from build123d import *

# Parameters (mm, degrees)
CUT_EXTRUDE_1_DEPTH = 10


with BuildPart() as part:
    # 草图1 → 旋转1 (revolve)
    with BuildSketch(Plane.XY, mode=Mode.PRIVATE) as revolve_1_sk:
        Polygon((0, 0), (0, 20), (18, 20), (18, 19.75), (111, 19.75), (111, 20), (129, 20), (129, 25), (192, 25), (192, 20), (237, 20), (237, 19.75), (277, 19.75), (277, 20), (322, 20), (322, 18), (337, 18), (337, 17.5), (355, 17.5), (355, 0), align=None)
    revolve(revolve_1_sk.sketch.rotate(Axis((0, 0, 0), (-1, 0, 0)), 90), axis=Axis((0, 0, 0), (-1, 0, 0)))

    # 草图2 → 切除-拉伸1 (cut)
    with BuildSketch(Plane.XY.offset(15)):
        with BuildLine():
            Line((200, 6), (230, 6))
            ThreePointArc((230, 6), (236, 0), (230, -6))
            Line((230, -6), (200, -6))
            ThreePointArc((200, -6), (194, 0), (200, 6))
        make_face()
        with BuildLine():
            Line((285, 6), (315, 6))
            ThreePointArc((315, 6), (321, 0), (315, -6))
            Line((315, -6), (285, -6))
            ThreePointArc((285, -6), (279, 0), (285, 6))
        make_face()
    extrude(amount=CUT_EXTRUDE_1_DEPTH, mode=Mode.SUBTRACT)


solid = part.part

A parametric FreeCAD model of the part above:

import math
import FreeCAD as App
import Part
import Sketcher

V = App.Vector
Q = App.Units.Quantity


def add_polygon(sketch, points):
    """Adds a closed chain of lines whose ends are joined by coincident constraints."""
    first, n = sketch.GeometryCount, len(points)
    for a, b in zip(points, points[1:] + points[:1]):
        sketch.addGeometry(Part.LineSegment(App.Vector(*a, 0), App.Vector(*b, 0)), False)
    for i in range(n):
        sketch.addConstraint(Sketcher.Constraint("Coincident", first + i, 2, first + (i + 1) % n, 1))

doc = App.newDocument("Part")
body = doc.addObject("PartDesign::Body", "Body")

# Sketch on XY plane
sketch1 = body.newObject("Sketcher::SketchObject", "Sketch")
sketch1.AttachmentSupport = (doc.getObject("XY_Plane"), [""])
sketch1.MapMode = "FlatFace"
add_polygon(sketch1, [(0, 20), (0, 0), (355, 0), (355, 17.5), (337, 17.5), (337, 18), (322, 18), (322, 20), (277, 20), (277, 19.75), (237, 19.75), (237, 20), (192, 20), (192, 25), (129, 25), (129, 20), (111, 20), (111, 19.75), (18, 19.75), (18, 20)])  # lines 0-19
sketch1.addConstraint(Sketcher.Constraint("Vertical", 0))
sketch1.addConstraint(Sketcher.Constraint("Horizontal", 1))
sketch1.addConstraint(Sketcher.Constraint("Vertical", 2))
sketch1.addConstraint(Sketcher.Constraint("Horizontal", 3))
sketch1.addConstraint(Sketcher.Constraint("Vertical", 4))
sketch1.addConstraint(Sketcher.Constraint("Horizontal", 5))
sketch1.addConstraint(Sketcher.Constraint("Vertical", 6))
sketch1.addConstraint(Sketcher.Constraint("Horizontal", 7))
sketch1.addConstraint(Sketcher.Constraint("Vertical", 8))
sketch1.addConstraint(Sketcher.Constraint("Horizontal", 9))
sketch1.addConstraint(Sketcher.Constraint("Vertical", 10))
sketch1.addConstraint(Sketcher.Constraint("Horizontal", 11))
sketch1.addConstraint(Sketcher.Constraint("Vertical", 12))
sketch1.addConstraint(Sketcher.Constraint("Horizontal", 13))
sketch1.addConstraint(Sketcher.Constraint("Vertical", 14))
sketch1.addConstraint(Sketcher.Constraint("Horizontal", 15))
sketch1.addConstraint(Sketcher.Constraint("Vertical", 16))
sketch1.addConstraint(Sketcher.Constraint("Horizontal", 17))
sketch1.addConstraint(Sketcher.Constraint("Vertical", 18))
sketch1.addConstraint(Sketcher.Constraint("Horizontal", 19))
sketch1.addConstraint(Sketcher.Constraint("Coincident", 0, 2, -1, 1))
sketch1.addConstraint(Sketcher.Constraint("Horizontal", 7, 2, 10, 2))
sketch1.addConstraint(Sketcher.Constraint("Horizontal", 11, 2, 14, 2))
sketch1.addConstraint(Sketcher.Constraint("Horizontal", 9, 2, 16, 2))
sketch1.addConstraint(Sketcher.Constraint("Horizontal", 15, 2, 18, 2))
sketch1.addConstraint(Sketcher.Constraint("Equal", 7, 11))
sketch1.addConstraint(Sketcher.Constraint("Equal", 3, 15))
sketch1.addConstraint(Sketcher.Constraint("Equal", 15, 19))
sketch1.addConstraint(Sketcher.Constraint("DistanceX", 1, 1, 1, 2, Q("355 mm")))
sketch1.addConstraint(Sketcher.Constraint("DistanceX", 3, 2, 3, 1, Q("18 mm")))
sketch1.addConstraint(Sketcher.Constraint("DistanceX", 5, 2, 5, 1, Q("15 mm")))
sketch1.addConstraint(Sketcher.Constraint("DistanceX", 7, 2, 7, 1, Q("45 mm")))
sketch1.addConstraint(Sketcher.Constraint("DistanceX", 9, 2, 9, 1, Q("40 mm")))
sketch1.addConstraint(Sketcher.Constraint("DistanceX", 13, 2, 13, 1, Q("63 mm")))
sketch1.addConstraint(Sketcher.Constraint("DistanceY", 0, 2, 0, 1, Q("20 mm")))
sketch1.addConstraint(Sketcher.Constraint("DistanceY", 6, 1, 6, 2, Q("2 mm")))
sketch1.addConstraint(Sketcher.Constraint("DistanceY", 12, 1, 12, 2, Q("5 mm")))
sketch1.addConstraint(Sketcher.Constraint("DistanceY", 2, 1, 2, 2, Q("17.5 mm")))
sketch1.addConstraint(Sketcher.Constraint("DistanceY", 8, 2, 8, 1, Q("0.25 mm")))
revolution = body.newObject("PartDesign::Revolution", "Revolution")
revolution.Profile = sketch1
revolution.ReferenceAxis = (sketch1, ["H_Axis"])
revolution.Angle = 360

# Sketch on XY plane
sketch2 = body.newObject("Sketcher::SketchObject", "Sketch001")
sketch2.AttachmentSupport = (doc.getObject("XY_Plane"), [""])
sketch2.MapMode = "FlatFace"
sketch2.AttachmentOffset = App.Placement(V(0, 0, 15), App.Rotation())
sketch2.addGeometry(Part.LineSegment(V(230, 6, 0), V(200, 6, 0)), False)
sketch2.addGeometry(Part.ArcOfCircle(Part.Circle(V(200, 0, 0), V(0, 0, 1), 6), math.radians(90), math.radians(270)), False)
sketch2.addGeometry(Part.LineSegment(V(200, -6, 0), V(230, -6, 0)), False)
sketch2.addGeometry(Part.ArcOfCircle(Part.Circle(V(230, 0, 0), V(0, 0, 1), 6), math.radians(-90), math.radians(90)), False)
sketch2.addGeometry(Part.LineSegment(V(315, 6, 0), V(285, 6, 0)), False)
sketch2.addGeometry(Part.ArcOfCircle(Part.Circle(V(285, 0, 0), V(0, 0, 1), 6), math.radians(90), math.radians(270)), False)
sketch2.addGeometry(Part.LineSegment(V(285, -6, 0), V(315, -6, 0)), False)
sketch2.addGeometry(Part.ArcOfCircle(Part.Circle(V(315, 0, 0), V(0, 0, 1), 6), math.radians(-90), math.radians(90)), False)
sketch2.addConstraint(Sketcher.Constraint("Tangent", 0, 2, 1, 1))
sketch2.addConstraint(Sketcher.Constraint("Tangent", 1, 2, 2, 1))
sketch2.addConstraint(Sketcher.Constraint("Tangent", 2, 2, 3, 1))
sketch2.addConstraint(Sketcher.Constraint("Tangent", 3, 2, 0, 1))
sketch2.addConstraint(Sketcher.Constraint("Tangent", 4, 2, 5, 1))
sketch2.addConstraint(Sketcher.Constraint("Tangent", 5, 2, 6, 1))
sketch2.addConstraint(Sketcher.Constraint("Tangent", 6, 2, 7, 1))
sketch2.addConstraint(Sketcher.Constraint("Tangent", 7, 2, 4, 1))
sketch2.addConstraint(Sketcher.Constraint("Horizontal", 0))
sketch2.addConstraint(Sketcher.Constraint("Horizontal", 2))
sketch2.addConstraint(Sketcher.Constraint("Horizontal", 4))
sketch2.addConstraint(Sketcher.Constraint("Horizontal", 6))
sketch2.addConstraint(Sketcher.Constraint("Equal", 3, 5))
sketch2.addConstraint(Sketcher.Constraint("PointOnObject", 1, 3, -1))
sketch2.addConstraint(Sketcher.Constraint("PointOnObject", 5, 3, -1))
sketch2.addConstraint(Sketcher.Constraint("Equal", 2, 4))
sketch2.addConstraint(Sketcher.Constraint("Radius", 1, Q("6 mm")))
sketch2.addConstraint(Sketcher.Constraint("DistanceX", 0, 2, 0, 1, Q("30 mm")))
sketch2.addConstraint(Sketcher.Constraint("DistanceX", -1, 1, 1, 3, Q("200 mm")))
sketch2.addConstraint(Sketcher.Constraint("DistanceX", -1, 1, 5, 3, Q("285 mm")))
pocket1 = body.newObject("PartDesign::Pocket", "Pocket")
pocket1.Profile = sketch2
pocket1.Length = 10
pocket1.Reversed = True

doc.recompute()
